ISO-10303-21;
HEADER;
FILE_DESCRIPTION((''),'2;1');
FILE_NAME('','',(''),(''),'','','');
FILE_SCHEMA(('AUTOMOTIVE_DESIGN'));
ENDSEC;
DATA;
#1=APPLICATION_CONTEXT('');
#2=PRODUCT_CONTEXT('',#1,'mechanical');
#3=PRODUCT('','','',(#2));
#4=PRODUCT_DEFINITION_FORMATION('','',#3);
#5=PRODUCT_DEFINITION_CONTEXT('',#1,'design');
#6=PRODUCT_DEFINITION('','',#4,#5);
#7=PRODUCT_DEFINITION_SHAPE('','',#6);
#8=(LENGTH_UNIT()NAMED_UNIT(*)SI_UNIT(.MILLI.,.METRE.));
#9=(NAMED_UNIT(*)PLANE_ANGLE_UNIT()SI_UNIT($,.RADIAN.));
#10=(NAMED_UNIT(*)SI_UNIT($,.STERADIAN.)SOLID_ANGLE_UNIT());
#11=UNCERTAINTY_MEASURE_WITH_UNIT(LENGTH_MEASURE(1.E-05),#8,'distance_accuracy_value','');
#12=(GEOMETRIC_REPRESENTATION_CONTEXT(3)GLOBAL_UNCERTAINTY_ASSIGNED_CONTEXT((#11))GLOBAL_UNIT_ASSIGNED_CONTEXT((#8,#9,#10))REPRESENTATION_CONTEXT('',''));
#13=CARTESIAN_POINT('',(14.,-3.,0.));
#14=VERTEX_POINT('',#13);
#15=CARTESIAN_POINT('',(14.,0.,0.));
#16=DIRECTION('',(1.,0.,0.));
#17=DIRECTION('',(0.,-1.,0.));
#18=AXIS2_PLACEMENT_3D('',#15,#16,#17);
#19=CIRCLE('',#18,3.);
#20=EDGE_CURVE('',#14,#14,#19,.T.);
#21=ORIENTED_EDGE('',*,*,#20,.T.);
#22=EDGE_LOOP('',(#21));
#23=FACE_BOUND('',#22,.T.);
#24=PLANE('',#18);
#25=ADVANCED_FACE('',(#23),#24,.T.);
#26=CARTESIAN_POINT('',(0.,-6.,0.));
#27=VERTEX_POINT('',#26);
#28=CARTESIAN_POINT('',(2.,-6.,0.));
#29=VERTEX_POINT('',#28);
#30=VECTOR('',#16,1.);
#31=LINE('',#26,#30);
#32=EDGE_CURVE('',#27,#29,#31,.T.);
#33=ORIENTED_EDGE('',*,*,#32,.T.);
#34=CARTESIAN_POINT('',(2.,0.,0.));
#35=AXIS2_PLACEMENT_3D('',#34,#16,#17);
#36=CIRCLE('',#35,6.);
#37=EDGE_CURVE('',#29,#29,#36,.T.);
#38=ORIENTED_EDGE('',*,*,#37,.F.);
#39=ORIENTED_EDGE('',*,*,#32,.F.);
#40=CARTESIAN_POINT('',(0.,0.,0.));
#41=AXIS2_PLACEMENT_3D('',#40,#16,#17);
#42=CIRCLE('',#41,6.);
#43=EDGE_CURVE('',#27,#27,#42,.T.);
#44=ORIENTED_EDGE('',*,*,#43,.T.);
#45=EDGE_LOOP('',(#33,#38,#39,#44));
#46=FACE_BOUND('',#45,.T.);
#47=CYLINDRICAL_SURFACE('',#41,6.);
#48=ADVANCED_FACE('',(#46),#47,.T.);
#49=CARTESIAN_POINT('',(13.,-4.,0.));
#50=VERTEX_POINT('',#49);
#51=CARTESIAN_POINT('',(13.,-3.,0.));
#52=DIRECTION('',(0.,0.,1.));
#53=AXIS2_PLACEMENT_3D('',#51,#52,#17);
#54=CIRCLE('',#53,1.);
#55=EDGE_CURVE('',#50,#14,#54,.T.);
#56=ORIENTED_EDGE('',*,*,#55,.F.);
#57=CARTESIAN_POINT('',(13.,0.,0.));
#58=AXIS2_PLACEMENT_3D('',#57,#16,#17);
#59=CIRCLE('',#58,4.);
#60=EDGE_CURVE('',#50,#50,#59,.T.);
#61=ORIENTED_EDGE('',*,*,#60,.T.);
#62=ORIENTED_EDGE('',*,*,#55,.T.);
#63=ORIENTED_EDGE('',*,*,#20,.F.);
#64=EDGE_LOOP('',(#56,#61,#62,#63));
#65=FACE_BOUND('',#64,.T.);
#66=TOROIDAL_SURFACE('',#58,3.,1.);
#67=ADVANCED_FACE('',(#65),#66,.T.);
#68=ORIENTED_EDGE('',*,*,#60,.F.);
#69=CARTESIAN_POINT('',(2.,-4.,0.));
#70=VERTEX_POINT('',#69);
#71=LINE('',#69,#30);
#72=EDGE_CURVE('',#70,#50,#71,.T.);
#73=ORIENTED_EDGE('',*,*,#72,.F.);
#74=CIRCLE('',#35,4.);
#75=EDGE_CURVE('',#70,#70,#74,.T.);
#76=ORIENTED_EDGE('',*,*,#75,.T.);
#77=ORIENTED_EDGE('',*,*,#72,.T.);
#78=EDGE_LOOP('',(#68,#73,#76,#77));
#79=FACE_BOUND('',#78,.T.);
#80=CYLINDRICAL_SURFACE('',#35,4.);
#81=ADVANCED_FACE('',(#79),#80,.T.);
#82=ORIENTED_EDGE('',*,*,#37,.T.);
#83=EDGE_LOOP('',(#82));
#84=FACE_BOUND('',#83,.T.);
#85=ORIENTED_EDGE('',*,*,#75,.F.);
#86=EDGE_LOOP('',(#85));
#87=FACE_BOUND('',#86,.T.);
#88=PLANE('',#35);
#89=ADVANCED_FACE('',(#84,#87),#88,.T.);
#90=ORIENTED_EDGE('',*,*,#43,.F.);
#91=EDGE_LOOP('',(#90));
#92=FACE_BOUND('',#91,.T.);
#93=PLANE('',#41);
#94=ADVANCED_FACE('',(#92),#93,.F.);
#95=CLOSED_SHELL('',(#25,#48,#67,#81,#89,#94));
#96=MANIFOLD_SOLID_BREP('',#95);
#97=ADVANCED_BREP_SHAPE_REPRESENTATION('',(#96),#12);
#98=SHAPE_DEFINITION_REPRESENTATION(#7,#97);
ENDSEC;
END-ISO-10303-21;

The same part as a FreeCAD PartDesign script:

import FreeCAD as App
import Part
import Sketcher

V = App.Vector


def edges_at(feature, points):
    """Names of the edges that pass closest to the given points."""
    edges = feature.Shape.Edges
    near = lambda p: min(range(len(edges)), key=lambda i: edges[i].distToShape(Part.Vertex(*p))[0])
    return sorted({f"Edge{near(p) + 1}" for p in points})

doc = App.newDocument("Part")
body = doc.addObject("PartDesign::Body", "Body")

sketch1 = body.newObject("Sketcher::SketchObject", "Sketch")
sketch1.AttachmentSupport = (doc.getObject("XY_Plane"), [""])
sketch1.MapMode = "FlatFace"
sketch1.addGeometry(Part.LineSegment(V(0, 0, 0), V(0, -6, 0)), False)
sketch1.addGeometry(Part.LineSegment(V(0, -6, 0), V(2, -6, 0)), False)
sketch1.addGeometry(Part.LineSegment(V(2, -6, 0), V(2, -4, 0)), False)
sketch1.addGeometry(Part.LineSegment(V(2, -4, 0), V(14, -4, 0)), False)
sketch1.addGeometry(Part.LineSegment(V(14, -4, 0), V(14, 0, 0)), False)
sketch1.addGeometry(Part.LineSegment(V(14, 0, 0), V(0, 0, 0)), False)
sketch1.addConstraint(Sketcher.Constraint("Coincident", 0, 2, 1, 1))
sketch1.addConstraint(Sketcher.Constraint("Coincident", 1, 2, 2, 1))
sketch1.addConstraint(Sketcher.Constraint("Coincident", 2, 2, 3, 1))
sketch1.addConstraint(Sketcher.Constraint("Coincident", 3, 2, 4, 1))
sketch1.addConstraint(Sketcher.Constraint("Coincident", 4, 2, 5, 1))
sketch1.addConstraint(Sketcher.Constraint("Coincident", 5, 2, 0, 1))
sketch1.addConstraint(Sketcher.Constraint("Vertical", 0))
sketch1.addConstraint(Sketcher.Constraint("Horizontal", 1))
sketch1.addConstraint(Sketcher.Constraint("Vertical", 2))
sketch1.addConstraint(Sketcher.Constraint("Horizontal", 3))
sketch1.addConstraint(Sketcher.Constraint("Vertical", 4))
sketch1.addConstraint(Sketcher.Constraint("Horizontal", 5))
sketch1.addConstraint(Sketcher.Constraint("Coincident", 5, 2, -1, 1))
sketch1.addConstraint(Sketcher.Constraint("Equal", 1, 2))
sketch1.addConstraint(Sketcher.Constraint("DistanceX", 1, 1, 1, 2, 2.0))
sketch1.addConstraint(Sketcher.Constraint("DistanceX", 3, 1, 3, 2, 12.0))
sketch1.addConstraint(Sketcher.Constraint("DistanceY", 0, 2, 0, 1, 6.0))
revolution = body.newObject("PartDesign::Revolution", "Revolution")
revolution.Profile = sketch1
revolution.ReferenceAxis = (sketch1, ["H_Axis"])
revolution.Angle = 360
doc.recompute()

fillet = body.newObject("PartDesign::Fillet", "Fillet")
fillet.Base = (revolution, edges_at(revolution, [(14, 4, 0)]))
fillet.Radius = 1

doc.recompute()
